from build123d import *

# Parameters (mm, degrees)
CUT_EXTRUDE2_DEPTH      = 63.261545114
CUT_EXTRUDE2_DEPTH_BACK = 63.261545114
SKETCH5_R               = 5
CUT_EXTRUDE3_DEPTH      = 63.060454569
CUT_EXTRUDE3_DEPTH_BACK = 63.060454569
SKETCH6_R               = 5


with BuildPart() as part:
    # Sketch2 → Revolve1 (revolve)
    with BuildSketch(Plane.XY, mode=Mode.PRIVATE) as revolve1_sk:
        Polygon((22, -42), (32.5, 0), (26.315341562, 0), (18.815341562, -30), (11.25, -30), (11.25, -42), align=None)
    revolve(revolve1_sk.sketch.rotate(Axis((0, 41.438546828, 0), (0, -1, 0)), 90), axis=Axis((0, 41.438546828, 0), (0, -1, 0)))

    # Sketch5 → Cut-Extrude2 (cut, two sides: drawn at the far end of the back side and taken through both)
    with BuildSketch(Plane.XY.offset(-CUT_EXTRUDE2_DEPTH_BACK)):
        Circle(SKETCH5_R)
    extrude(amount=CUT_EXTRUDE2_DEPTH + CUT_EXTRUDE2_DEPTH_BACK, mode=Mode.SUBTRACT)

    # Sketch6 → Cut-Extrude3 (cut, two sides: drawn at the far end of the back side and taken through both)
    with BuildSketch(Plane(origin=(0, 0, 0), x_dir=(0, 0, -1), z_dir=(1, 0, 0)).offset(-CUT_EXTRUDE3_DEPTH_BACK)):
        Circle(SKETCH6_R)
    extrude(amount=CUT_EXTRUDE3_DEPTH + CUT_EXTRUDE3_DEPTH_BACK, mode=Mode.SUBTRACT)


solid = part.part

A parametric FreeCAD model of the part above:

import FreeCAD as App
import Part
import Sketcher
from FreeCAD import Vector
Q = App.Units.Quantity

doc = App.newDocument("Part")
body = doc.addObject("PartDesign::Body", "Body")

# Sketch on XY plane
sketch1 = body.newObject("Sketcher::SketchObject", "Sketch")
sketch1.AttachmentSupport = (doc.getObject("XY_Plane"), [""])
sketch1.MapMode = "FlatFace"
sketch1.addGeometry(Part.LineSegment(Vector(22, -42, 0), Vector(32.5, 0, 0)), False)
sketch1.addGeometry(Part.LineSegment(Vector(32.5, 0, 0), Vector(26.315342, 0, 0)), False)
sketch1.addGeometry(Part.LineSegment(Vector(26.315342, 0, 0), Vector(18.815342, -30, 0)), False)
sketch1.addGeometry(Part.LineSegment(Vector(18.815342, -30, 0), Vector(11.25, -30, 0)), False)
sketch1.addGeometry(Part.LineSegment(Vector(11.25, -30, 0), Vector(11.25, -42, 0)), False)
sketch1.addGeometry(Part.LineSegment(Vector(11.25, -42, 0), Vector(22, -42, 0)), False)
sketch1.addConstraint(Sketcher.Constraint("Coincident", 0, 2, 1, 1))
sketch1.addConstraint(Sketcher.Constraint("Coincident", 1, 2, 2, 1))
sketch1.addConstraint(Sketcher.Constraint("Coincident", 2, 2, 3, 1))
sketch1.addConstraint(Sketcher.Constraint("Coincident", 3, 2, 4, 1))
sketch1.addConstraint(Sketcher.Constraint("Coincident", 4, 2, 5, 1))
sketch1.addConstraint(Sketcher.Constraint("Coincident", 5, 2, 0, 1))
sketch1.addConstraint(Sketcher.Constraint("Horizontal", 1))
sketch1.addConstraint(Sketcher.Constraint("Horizontal", 3))
sketch1.addConstraint(Sketcher.Constraint("Vertical", 4))
sketch1.addConstraint(Sketcher.Constraint("Horizontal", 5))
sketch1.addConstraint(Sketcher.Constraint("PointOnObject", 0, 2, -1))
sketch1.addConstraint(Sketcher.Constraint("Parallel", 0, 2))
sketch1.addConstraint(Sketcher.Constraint("DistanceY", 4, 2, 4, 1, Q("12 mm")))
sketch1.addConstraint(Sketcher.Constraint("DistanceY", 2, 2, -1, 1, Q("30 mm")))
sketch1.addConstraint(Sketcher.Constraint("DistanceX", -1, 1, 5, 2, Q("22 mm")))
sketch1.addConstraint(Sketcher.Constraint("DistanceX", 5, 1, 5, 2, Q("10.75 mm")))
sketch1.addConstraint(Sketcher.Constraint("DistanceX", -1, 1, 0, 2, Q("32.5 mm")))
sketch1.addConstraint(Sketcher.Constraint("DistanceX", 1, 2, 1, 1, Q("6.184658 mm")))
revolution = body.newObject("PartDesign::Revolution", "Revolution")
revolution.Profile = sketch1
revolution.ReferenceAxis = (sketch1, ["V_Axis"])
revolution.Angle = 360

# Sketch on XY plane
sketch2 = body.newObject("Sketcher::SketchObject", "Sketch001")
sketch2.AttachmentSupport = (doc.getObject("XY_Plane"), [""])
sketch2.MapMode = "FlatFace"
sketch2.addGeometry(Part.Circle(Vector(0, 0, 0), Vector(0, 0, 1), 5), False)
sketch2.addConstraint(Sketcher.Constraint("Coincident", 0, 3, -1, 1))
sketch2.addConstraint(Sketcher.Constraint("Diameter", 0, Q("10 mm")))
pocket1 = body.newObject("PartDesign::Pocket", "Pocket")
pocket1.Profile = sketch2
pocket1.Type = "ThroughAll"
pocket1.Midplane = True

# Sketch on YZ plane
sketch3 = body.newObject("Sketcher::SketchObject", "Sketch002")
sketch3.AttachmentSupport = (doc.getObject("YZ_Plane"), [""])
sketch3.MapMode = "FlatFace"
sketch3.addGeometry(Part.Circle(Vector(0, 0, 0), Vector(0, 0, 1), 5), False)
sketch3.addConstraint(Sketcher.Constraint("Coincident", 0, 3, -1, 1))
sketch3.addConstraint(Sketcher.Constraint("Diameter", 0, Q("10 mm")))
pocket2 = body.newObject("PartDesign::Pocket", "Pocket001")
pocket2.Profile = sketch3
pocket2.Type = "ThroughAll"
pocket2.Midplane = True

doc.recompute()
